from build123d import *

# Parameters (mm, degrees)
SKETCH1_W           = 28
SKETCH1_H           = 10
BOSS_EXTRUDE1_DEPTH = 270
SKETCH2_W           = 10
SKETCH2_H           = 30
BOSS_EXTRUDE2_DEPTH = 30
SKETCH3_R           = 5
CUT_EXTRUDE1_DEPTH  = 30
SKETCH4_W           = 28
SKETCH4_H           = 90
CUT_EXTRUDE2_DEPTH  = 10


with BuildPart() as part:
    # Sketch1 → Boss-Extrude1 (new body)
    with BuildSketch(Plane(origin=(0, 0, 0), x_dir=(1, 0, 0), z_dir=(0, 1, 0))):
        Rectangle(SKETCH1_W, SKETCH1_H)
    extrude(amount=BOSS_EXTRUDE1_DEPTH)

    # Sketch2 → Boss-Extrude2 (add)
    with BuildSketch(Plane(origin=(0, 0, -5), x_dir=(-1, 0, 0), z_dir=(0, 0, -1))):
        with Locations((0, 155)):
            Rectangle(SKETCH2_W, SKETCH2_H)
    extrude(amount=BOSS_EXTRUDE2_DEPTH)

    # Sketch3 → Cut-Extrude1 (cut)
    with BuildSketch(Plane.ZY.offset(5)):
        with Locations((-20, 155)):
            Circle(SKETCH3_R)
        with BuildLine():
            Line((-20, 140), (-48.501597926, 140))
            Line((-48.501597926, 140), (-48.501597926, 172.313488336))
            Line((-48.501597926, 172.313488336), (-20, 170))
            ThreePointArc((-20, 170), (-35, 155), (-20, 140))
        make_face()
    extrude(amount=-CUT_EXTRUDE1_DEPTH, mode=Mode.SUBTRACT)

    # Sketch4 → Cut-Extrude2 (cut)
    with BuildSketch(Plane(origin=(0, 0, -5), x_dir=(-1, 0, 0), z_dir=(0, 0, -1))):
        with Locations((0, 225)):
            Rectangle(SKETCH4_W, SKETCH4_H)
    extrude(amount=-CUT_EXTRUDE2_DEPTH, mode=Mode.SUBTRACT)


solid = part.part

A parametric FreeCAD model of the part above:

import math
import FreeCAD as App
import Part
import Sketcher
from FreeCAD import Vector
Q = App.Units.Quantity

doc = App.newDocument("Part")
body = doc.addObject("PartDesign::Body", "Body")

sketch1 = body.newObject("Sketcher::SketchObject", "Sketch")
sketch1.AttachmentSupport = (doc.getObject("XZ_Plane"), [""])
sketch1.MapMode = "FlatFace"
sketch1.addGeometry([
    Part.LineSegment(Vector(-14, -5, 0), Vector(-14, 5, 0)),
    Part.LineSegment(Vector(-14, 5, 0), Vector(14, 5, 0)),
    Part.LineSegment(Vector(14, 5, 0), Vector(14, -5, 0)),
    Part.LineSegment(Vector(14, -5, 0), Vector(-14, -5, 0)),
], False)
sketch1.addConstraint([
    Sketcher.Constraint("Coincident", 0, 2, 1, 1),
    Sketcher.Constraint("Coincident", 1, 2, 2, 1),
    Sketcher.Constraint("Coincident", 2, 2, 3, 1),
    Sketcher.Constraint("Coincident", 3, 2, 0, 1),
    Sketcher.Constraint("Vertical", 0),
    Sketcher.Constraint("Horizontal", 1),
    Sketcher.Constraint("Vertical", 2),
    Sketcher.Constraint("Horizontal", 3),
    Sketcher.Constraint("Symmetric", 0, 2, 2, 2, -1, 1),
    Sketcher.Constraint("DistanceX", 1, 1, 1, 2, Q("28 mm")),
    Sketcher.Constraint("DistanceY", 0, 1, 0, 2, Q("10 mm")),
])
pad1 = body.newObject("PartDesign::Pad", "Pad")
pad1.Profile = sketch1
pad1.Length = 270
pad1.Reversed = True

sketch2 = body.newObject("Sketcher::SketchObject", "Sketch001")
sketch2.AttachmentSupport = (doc.getObject("XY_Plane"), [""])
sketch2.MapMode = "FlatFace"
sketch2.AttachmentOffset = App.Placement(Vector(0, 0, -5), App.Rotation())
sketch2.addGeometry([
    Part.LineSegment(Vector(5, 170, 0), Vector(5, 140, 0)),
    Part.LineSegment(Vector(5, 140, 0), Vector(-5, 140, 0)),
    Part.LineSegment(Vector(-5, 140, 0), Vector(-5, 170, 0)),
    Part.LineSegment(Vector(-5, 170, 0), Vector(5, 170, 0)),
], False)
sketch2.addConstraint([
    Sketcher.Constraint("Coincident", 0, 2, 1, 1),
    Sketcher.Constraint("Coincident", 1, 2, 2, 1),
    Sketcher.Constraint("Coincident", 2, 2, 3, 1),
    Sketcher.Constraint("Coincident", 3, 2, 0, 1),
    Sketcher.Constraint("Vertical", 0),
    Sketcher.Constraint("Horizontal", 1),
    Sketcher.Constraint("Vertical", 2),
    Sketcher.Constraint("Horizontal", 3),
    Sketcher.Constraint("DistanceX", 1, 2, 1, 1, Q("10 mm")),
    Sketcher.Constraint("DistanceY", 0, 2, 0, 1, Q("30 mm")),
    Sketcher.Constraint("DistanceX", -1, 1, 0, 2, Q("5 mm")),
    Sketcher.Constraint("DistanceY", -1, 1, 0, 2, Q("140 mm")),
])
pad2 = body.newObject("PartDesign::Pad", "Pad001")
pad2.Profile = sketch2
pad2.Length = 30
pad2.Reversed = True

sketch3 = body.newObject("Sketcher::SketchObject", "Sketch002")
sketch3.AttachmentSupport = (doc.getObject("YZ_Plane"), [""])
sketch3.MapMode = "FlatFace"
sketch3.AttachmentOffset = App.Placement(Vector(0, 0, -5), App.Rotation())
sketch3.addGeometry([
    Part.Circle(Vector(155, -20, 0), Vector(0, 0, 1), 5),
    Part.LineSegment(Vector(140, -48.501598, 0), Vector(140, -20, 0)),
    Part.ArcOfCircle(Part.Circle(Vector(155, -20, 0), Vector(0, 0, 1), 15), math.radians(180), math.radians(360)),
    Part.LineSegment(Vector(170, -20, 0), Vector(172.313488, -48.501598, 0)),
    Part.LineSegment(Vector(172.313488, -48.501598, 0), Vector(140, -48.501598, 0)),
], False)
sketch3.addConstraint([
    Sketcher.Constraint("Tangent", 1, 2, 2, 1),
    Sketcher.Constraint("Coincident", 2, 2, 3, 1),
    Sketcher.Constraint("Coincident", 3, 2, 4, 1),
    Sketcher.Constraint("Coincident", 4, 2, 1, 1),
    Sketcher.Constraint("Vertical", 1),
    Sketcher.Constraint("Horizontal", 4),
    Sketcher.Constraint("Coincident", 2, 3, 0, 3),
    Sketcher.Constraint("Horizontal", 1, 2, 2, 2),
    Sketcher.Constraint("Diameter", 0, Q("10 mm")),
    Sketcher.Constraint("Radius", 2, Q("15 mm")),
    Sketcher.Constraint("DistanceX", -1, 1, 0, 3, Q("155 mm")),
    Sketcher.Constraint("DistanceY", 0, 3, -1, 1, Q("20 mm")),
    Sketcher.Constraint("DistanceX", 4, 2, 4, 1, Q("32.313488 mm")),
    Sketcher.Constraint("DistanceY", 1, 1, 1, 2, Q("28.501598 mm")),
])
pocket1 = body.newObject("PartDesign::Pocket", "Pocket")
pocket1.Profile = sketch3
pocket1.Length = 30
pocket1.Reversed = True

sketch4 = body.newObject("Sketcher::SketchObject", "Sketch003")
sketch4.AttachmentSupport = (doc.getObject("XY_Plane"), [""])
sketch4.MapMode = "FlatFace"
sketch4.AttachmentOffset = App.Placement(Vector(0, 0, -5), App.Rotation())
sketch4.addGeometry([
    Part.LineSegment(Vector(14, 270, 0), Vector(14, 180, 0)),
    Part.LineSegment(Vector(14, 180, 0), Vector(-14, 180, 0)),
    Part.LineSegment(Vector(-14, 180, 0), Vector(-14, 270, 0)),
    Part.LineSegment(Vector(-14, 270, 0), Vector(14, 270, 0)),
], False)
sketch4.addConstraint([
    Sketcher.Constraint("Coincident", 0, 2, 1, 1),
    Sketcher.Constraint("Coincident", 1, 2, 2, 1),
    Sketcher.Constraint("Coincident", 2, 2, 3, 1),
    Sketcher.Constraint("Coincident", 3, 2, 0, 1),
    Sketcher.Constraint("Vertical", 0),
    Sketcher.Constraint("Horizontal", 1),
    Sketcher.Constraint("Vertical", 2),
    Sketcher.Constraint("Horizontal", 3),
    Sketcher.Constraint("DistanceX", 1, 2, 1, 1, Q("28 mm")),
    Sketcher.Constraint("DistanceY", 0, 2, 0, 1, Q("90 mm")),
    Sketcher.Constraint("DistanceX", -1, 1, 0, 2, Q("14 mm")),
    Sketcher.Constraint("DistanceY", -1, 1, 0, 2, Q("180 mm")),
])
pocket2 = body.newObject("PartDesign::Pocket", "Pocket001")
pocket2.Profile = sketch4
pocket2.Length = 10
pocket2.Reversed = True

doc.recompute()
